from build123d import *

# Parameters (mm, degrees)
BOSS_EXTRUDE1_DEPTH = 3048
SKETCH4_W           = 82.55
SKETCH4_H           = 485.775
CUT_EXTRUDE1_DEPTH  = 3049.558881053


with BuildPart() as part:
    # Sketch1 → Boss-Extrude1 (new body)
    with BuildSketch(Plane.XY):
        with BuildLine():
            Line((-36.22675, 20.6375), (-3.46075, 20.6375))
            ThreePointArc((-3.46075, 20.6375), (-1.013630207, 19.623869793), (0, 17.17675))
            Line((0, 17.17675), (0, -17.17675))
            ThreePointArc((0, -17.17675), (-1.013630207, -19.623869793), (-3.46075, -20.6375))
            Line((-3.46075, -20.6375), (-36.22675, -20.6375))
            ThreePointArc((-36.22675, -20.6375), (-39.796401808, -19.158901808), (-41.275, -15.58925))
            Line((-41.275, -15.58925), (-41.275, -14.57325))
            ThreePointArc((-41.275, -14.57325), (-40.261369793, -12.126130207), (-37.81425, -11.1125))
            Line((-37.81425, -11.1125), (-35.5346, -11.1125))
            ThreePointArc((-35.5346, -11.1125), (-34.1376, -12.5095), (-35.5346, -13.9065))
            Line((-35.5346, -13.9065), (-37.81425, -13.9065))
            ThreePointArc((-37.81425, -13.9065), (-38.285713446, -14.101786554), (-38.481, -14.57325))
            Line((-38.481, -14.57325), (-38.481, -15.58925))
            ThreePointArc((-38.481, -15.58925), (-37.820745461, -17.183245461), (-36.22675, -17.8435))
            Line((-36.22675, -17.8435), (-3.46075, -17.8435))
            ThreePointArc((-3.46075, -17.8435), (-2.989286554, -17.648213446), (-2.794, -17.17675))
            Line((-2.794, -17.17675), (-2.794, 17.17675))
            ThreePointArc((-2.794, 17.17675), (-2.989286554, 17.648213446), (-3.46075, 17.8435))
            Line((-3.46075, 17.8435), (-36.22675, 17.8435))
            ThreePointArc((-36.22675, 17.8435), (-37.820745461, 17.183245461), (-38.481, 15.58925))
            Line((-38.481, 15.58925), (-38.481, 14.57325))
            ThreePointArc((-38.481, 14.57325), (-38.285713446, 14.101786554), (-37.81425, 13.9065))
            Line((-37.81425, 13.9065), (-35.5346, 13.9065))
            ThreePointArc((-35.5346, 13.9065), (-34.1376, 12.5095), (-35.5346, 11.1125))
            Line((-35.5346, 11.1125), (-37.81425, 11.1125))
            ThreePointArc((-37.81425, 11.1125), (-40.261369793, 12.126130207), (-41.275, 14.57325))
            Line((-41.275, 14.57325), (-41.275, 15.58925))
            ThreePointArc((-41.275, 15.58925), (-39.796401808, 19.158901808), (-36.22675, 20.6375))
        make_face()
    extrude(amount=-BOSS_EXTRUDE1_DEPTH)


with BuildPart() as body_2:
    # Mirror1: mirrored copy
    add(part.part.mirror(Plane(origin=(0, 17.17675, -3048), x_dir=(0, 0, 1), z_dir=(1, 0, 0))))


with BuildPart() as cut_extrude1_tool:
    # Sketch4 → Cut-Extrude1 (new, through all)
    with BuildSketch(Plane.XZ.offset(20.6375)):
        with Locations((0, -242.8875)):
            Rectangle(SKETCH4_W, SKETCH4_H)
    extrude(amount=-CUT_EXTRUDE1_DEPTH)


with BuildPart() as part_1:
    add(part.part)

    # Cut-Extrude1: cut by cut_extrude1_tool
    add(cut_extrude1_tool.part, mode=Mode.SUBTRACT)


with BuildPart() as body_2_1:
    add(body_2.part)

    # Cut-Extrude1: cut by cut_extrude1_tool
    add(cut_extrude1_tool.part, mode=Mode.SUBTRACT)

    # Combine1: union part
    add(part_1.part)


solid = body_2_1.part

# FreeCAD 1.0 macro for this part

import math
import FreeCAD as App
import Part
import Sketcher

V = App.Vector
Q = App.Units.Quantity


def add_polygon(sketch, points):
    """Adds a closed chain of lines whose ends are joined by coincident constraints."""
    first, n = sketch.GeometryCount, len(points)
    for a, b in zip(points, points[1:] + points[:1]):
        sketch.addGeometry(Part.LineSegment(App.Vector(*a, 0), App.Vector(*b, 0)), False)
    for i in range(n):
        sketch.addConstraint(Sketcher.Constraint("Coincident", first + i, 2, first + (i + 1) % n, 1))

doc = App.newDocument("Part")
params = doc.addObject("Spreadsheet::Sheet", "Params")
for row, (alias, value) in enumerate([
    ("sketch1_radius", "0.055 in"),
    ("sketch1_width", "1.29 in"),
    ("sketch1_height", "0.04 in"),
    ("pad1_length", "120 in"),
    ("sketch2_width", "3.25 in"),
    ("sketch2_height", "19.125 in"),
    ("pad2_length", "3049.558881 mm"),
], start=1):
    params.set(f"A{row}", alias)
    params.set(f"B{row}", "=" + value)
    params.setAlias(f"B{row}", alias)

body = doc.addObject("PartDesign::Body", "Body")

# Sketch on XY plane
sketch1 = doc.addObject("Sketcher::SketchObject", "Sketch")
body.addObject(sketch1)
sketch1.AttachmentSupport = (doc.XY_Plane, [""])
sketch1.MapMode = "FlatFace"
sketch1.addGeometry([
    Part.LineSegment(V(-3.5, 20.6, 0), V(-36.2, 20.6, 0)),  # 0
    Part.ArcOfCircle(Part.Circle(V(-36.2, 15.6, 0), V(0, 0, 1), 5), math.radians(90), math.radians(180)),  # 1
    Part.LineSegment(V(-41.3, 15.6, 0), V(-41.3, 14.6, 0)),  # 2
    Part.ArcOfCircle(Part.Circle(V(-37.8, 14.6, 0), V(0, 0, 1), 3.5), math.radians(180), math.radians(270)),  # 3
    Part.LineSegment(V(-37.8, 11.1, 0), V(-35.5, 11.1, 0)),  # 4
    Part.ArcOfCircle(Part.Circle(V(-35.5, 12.5, 0), V(0, 0, 1), 1.4), math.radians(-90), math.radians(90)),  # 5
    Part.LineSegment(V(-35.5, 13.9, 0), V(-37.8, 13.9, 0)),  # 6
    Part.ArcOfCircle(Part.Circle(V(-37.8, 14.6, 0), V(0, 0, 1), 0.7), math.radians(-180), math.radians(-90)),  # 7
    Part.LineSegment(V(-38.5, 14.6, 0), V(-38.5, 15.6, 0)),  # 8
    Part.ArcOfCircle(Part.Circle(V(-36.2, 15.6, 0), V(0, 0, 1), 2.3), math.radians(90), math.radians(180)),  # 9
    Part.LineSegment(V(-36.2, 17.8, 0), V(-3.5, 17.8, 0)),  # 10
    Part.ArcOfCircle(Part.Circle(V(-3.5, 17.2, 0), V(0, 0, 1), 0.7), math.radians(0), math.radians(90)),  # 11
    Part.LineSegment(V(-2.8, 17.2, 0), V(-2.8, -17.2, 0)),  # 12
    Part.ArcOfCircle(Part.Circle(V(-3.5, -17.2, 0), V(0, 0, 1), 0.7), math.radians(-90), math.radians(0)),  # 13
    Part.LineSegment(V(-3.5, -17.8, 0), V(-36.2, -17.8, 0)),  # 14
    Part.ArcOfCircle(Part.Circle(V(-36.2, -15.6, 0), V(0, 0, 1), 2.3), math.radians(-180), math.radians(-90)),  # 15
    Part.LineSegment(V(-38.5, -15.6, 0), V(-38.5, -14.6, 0)),  # 16
    Part.ArcOfCircle(Part.Circle(V(-37.8, -14.6, 0), V(0, 0, 1), 0.7), math.radians(90), math.radians(180)),  # 17
    Part.LineSegment(V(-37.8, -13.9, 0), V(-35.5, -13.9, 0)),  # 18
    Part.ArcOfCircle(Part.Circle(V(-35.5, -12.5, 0), V(0, 0, 1), 1.4), math.radians(-90), math.radians(90)),  # 19
    Part.LineSegment(V(-35.5, -11.1, 0), V(-37.8, -11.1, 0)),  # 20
    Part.ArcOfCircle(Part.Circle(V(-37.8, -14.6, 0), V(0, 0, 1), 3.5), math.radians(90), math.radians(180)),  # 21
    Part.LineSegment(V(-41.3, -14.6, 0), V(-41.3, -15.6, 0)),  # 22
    Part.ArcOfCircle(Part.Circle(V(-36.2, -15.6, 0), V(0, 0, 1), 5), math.radians(180), math.radians(270)),  # 23
    Part.LineSegment(V(-36.2, -20.6, 0), V(-3.5, -20.6, 0)),  # 24
    Part.ArcOfCircle(Part.Circle(V(-3.5, -17.2, 0), V(0, 0, 1), 3.5), math.radians(-90), math.radians(0)),  # 25
    Part.LineSegment(V(0, -17.2, 0), V(0, 17.2, 0)),  # 26
    Part.ArcOfCircle(Part.Circle(V(-3.5, 17.2, 0), V(0, 0, 1), 3.5), math.radians(0), math.radians(90)),  # 27
], False)
sketch1.addConstraint([
    Sketcher.Constraint("Tangent", 0, 2, 1, 1),
    Sketcher.Constraint("Tangent", 1, 2, 2, 1),
    Sketcher.Constraint("Tangent", 2, 2, 3, 1),
    Sketcher.Constraint("Tangent", 3, 2, 4, 1),
    Sketcher.Constraint("Tangent", 4, 2, 5, 1),
    Sketcher.Constraint("Tangent", 5, 2, 6, 1),
    Sketcher.Constraint("Tangent", 6, 2, 7, 2),
    Sketcher.Constraint("Tangent", 7, 1, 8, 1),
    Sketcher.Constraint("Tangent", 8, 2, 9, 2),
    Sketcher.Constraint("Tangent", 9, 1, 10, 1),
    Sketcher.Constraint("Tangent", 10, 2, 11, 2),
    Sketcher.Constraint("Tangent", 11, 1, 12, 1),
    Sketcher.Constraint("Tangent", 12, 2, 13, 2),
    Sketcher.Constraint("Tangent", 13, 1, 14, 1),
    Sketcher.Constraint("Tangent", 14, 2, 15, 2),
    Sketcher.Constraint("Tangent", 15, 1, 16, 1),
    Sketcher.Constraint("Tangent", 16, 2, 17, 2),
    Sketcher.Constraint("Tangent", 17, 1, 18, 1),
    Sketcher.Constraint("Tangent", 18, 2, 19, 1),
    Sketcher.Constraint("Tangent", 19, 2, 20, 1),
    Sketcher.Constraint("Tangent", 20, 2, 21, 1),
    Sketcher.Constraint("Tangent", 21, 2, 22, 1),
    Sketcher.Constraint("Tangent", 22, 2, 23, 1),
    Sketcher.Constraint("Tangent", 23, 2, 24, 1),
    Sketcher.Constraint("Tangent", 24, 2, 25, 1),
    Sketcher.Constraint("Tangent", 25, 2, 26, 1),
    Sketcher.Constraint("Tangent", 26, 2, 27, 1),
    Sketcher.Constraint("Tangent", 27, 2, 0, 1),
    Sketcher.Constraint("Horizontal", 0),
    Sketcher.Constraint("Vertical", 2),
    Sketcher.Constraint("Horizontal", 4),
    Sketcher.Constraint("Horizontal", 6),
    Sketcher.Constraint("Vertical", 8),
    Sketcher.Constraint("Horizontal", 10),
    Sketcher.Constraint("Vertical", 12),
    Sketcher.Constraint("Horizontal", 14),
    Sketcher.Constraint("Vertical", 16),
    Sketcher.Constraint("Horizontal", 18),
    Sketcher.Constraint("Horizontal", 20),
    Sketcher.Constraint("Vertical", 22),
    Sketcher.Constraint("Horizontal", 24),
    Sketcher.Constraint("Vertical", 26),
    Sketcher.Constraint("Coincident", 7, 3, 3, 3),
    Sketcher.Constraint("Coincident", 9, 3, 1, 3),
    Sketcher.Constraint("Coincident", 21, 3, 17, 3),
    Sketcher.Constraint("Coincident", 23, 3, 15, 3),
    Sketcher.Constraint("Coincident", 25, 3, 13, 3),
    Sketcher.Constraint("Coincident", 27, 3, 11, 3),
    Sketcher.Constraint("Equal", 7, 11),
    Sketcher.Constraint("Equal", 11, 13),
    Sketcher.Constraint("Equal", 9, 15),
    Sketcher.Constraint("Equal", 13, 17),
    Sketcher.Constraint("Symmetric", 25, 2, 26, 2, -1, 1),
    Sketcher.Constraint("Symmetric", 3, 3, 17, 3, -1),
    Sketcher.Constraint("Vertical", 5, 3, 19, 3),
    Sketcher.Constraint("Radius", 5, Q("0.055 in")),
    Sketcher.Constraint("DistanceX", 0, 2, 0, 1, Q("1.29 in")),
    Sketcher.Constraint("DistanceY", 2, 2, 2, 1, Q("0.04 in")),
    Sketcher.Constraint("DistanceY", 13, 3, 9, 3, Q("1.29 in")),
    Sketcher.Constraint("DistanceY", 5, 3, 0, 2, Q("0.32 in")),
    Sketcher.Constraint("DistanceY", 12, 2, 12, 1, Q("1.3525 in")),
    Sketcher.Constraint("DistanceX", 5, 3, -1, 1, Q("1.399 in")),
])
sketch1.setExpression("Constraints[55]", "Params.sketch1_radius")
sketch1.setExpression("Constraints[56]", "Params.sketch1_width")
sketch1.setExpression("Constraints[57]", "Params.sketch1_height")
pad1 = doc.addObject("PartDesign::Pad", "Pad")
body.addObject(pad1)
pad1.Profile = sketch1
pad1.setExpression("Length", "Params.pad1_length")
pad1.Reversed = True
body2 = doc.addObject("PartDesign::Body", "Body001")
doc.recompute()

mirroring = doc.addObject("Part::Mirroring", "Mirroring")
mirroring.Source = body
mirroring.Base = V(0, 17.17675, -3048)
mirroring.Normal = V(1, 0, 0)
body2.BaseFeature = mirroring
doc.recompute()
body3 = doc.addObject("PartDesign::Body", "Body002")

# Sketch on XZ plane
sketch2 = doc.addObject("Sketcher::SketchObject", "Sketch001")
body3.addObject(sketch2)
sketch2.AttachmentSupport = (doc.getObject("XZ_Plane002"), [""])
sketch2.MapMode = "FlatFace"
sketch2.AttachmentOffset = App.Placement(V(0, 0, 0.8125 * 25.4), App.Rotation())
add_polygon(sketch2, [(-41, 0), (-41, -486), (41, -486), (41, 0)])  # lines 0-3
sketch2.addConstraint([
    Sketcher.Constraint("Vertical", 0),
    Sketcher.Constraint("Horizontal", 1),
    Sketcher.Constraint("Vertical", 2),
    Sketcher.Constraint("Horizontal", 3),
    Sketcher.Constraint("Symmetric", 2, 2, 3, 2, -1, 1),
    Sketcher.Constraint("DistanceX", 1, 1, 1, 2, Q("3.25 in")),
    Sketcher.Constraint("DistanceY", 0, 2, 0, 1, Q("19.125 in")),
])
sketch2.setExpression("Constraints[9]", "Params.sketch2_width")
sketch2.setExpression("Constraints[10]", "Params.sketch2_height")
pad2 = doc.addObject("PartDesign::Pad", "Pad001")
body3.addObject(pad2)
pad2.Profile = sketch2
pad2.setExpression("Length", "Params.pad2_length")
pad2.Reversed = True
doc.recompute()

body4 = doc.addObject("PartDesign::Body", "Body003")
body4.BaseFeature = body3
boolean = doc.addObject("PartDesign::Boolean", "Boolean")
body.addObject(boolean)
boolean.Type = "Cut"
boolean.addObjects([body4])
doc.recompute()

boolean2 = doc.addObject("PartDesign::Boolean", "Boolean001")
body2.addObject(boolean2)
boolean2.Type = "Cut"
boolean2.addObjects([body3])
doc.recompute()

boolean3 = doc.addObject("PartDesign::Boolean", "Boolean002")
body2.addObject(boolean3)
boolean3.Type = "Fuse"
boolean3.addObjects([body])
mirroring.Visibility = False

doc.recompute()
